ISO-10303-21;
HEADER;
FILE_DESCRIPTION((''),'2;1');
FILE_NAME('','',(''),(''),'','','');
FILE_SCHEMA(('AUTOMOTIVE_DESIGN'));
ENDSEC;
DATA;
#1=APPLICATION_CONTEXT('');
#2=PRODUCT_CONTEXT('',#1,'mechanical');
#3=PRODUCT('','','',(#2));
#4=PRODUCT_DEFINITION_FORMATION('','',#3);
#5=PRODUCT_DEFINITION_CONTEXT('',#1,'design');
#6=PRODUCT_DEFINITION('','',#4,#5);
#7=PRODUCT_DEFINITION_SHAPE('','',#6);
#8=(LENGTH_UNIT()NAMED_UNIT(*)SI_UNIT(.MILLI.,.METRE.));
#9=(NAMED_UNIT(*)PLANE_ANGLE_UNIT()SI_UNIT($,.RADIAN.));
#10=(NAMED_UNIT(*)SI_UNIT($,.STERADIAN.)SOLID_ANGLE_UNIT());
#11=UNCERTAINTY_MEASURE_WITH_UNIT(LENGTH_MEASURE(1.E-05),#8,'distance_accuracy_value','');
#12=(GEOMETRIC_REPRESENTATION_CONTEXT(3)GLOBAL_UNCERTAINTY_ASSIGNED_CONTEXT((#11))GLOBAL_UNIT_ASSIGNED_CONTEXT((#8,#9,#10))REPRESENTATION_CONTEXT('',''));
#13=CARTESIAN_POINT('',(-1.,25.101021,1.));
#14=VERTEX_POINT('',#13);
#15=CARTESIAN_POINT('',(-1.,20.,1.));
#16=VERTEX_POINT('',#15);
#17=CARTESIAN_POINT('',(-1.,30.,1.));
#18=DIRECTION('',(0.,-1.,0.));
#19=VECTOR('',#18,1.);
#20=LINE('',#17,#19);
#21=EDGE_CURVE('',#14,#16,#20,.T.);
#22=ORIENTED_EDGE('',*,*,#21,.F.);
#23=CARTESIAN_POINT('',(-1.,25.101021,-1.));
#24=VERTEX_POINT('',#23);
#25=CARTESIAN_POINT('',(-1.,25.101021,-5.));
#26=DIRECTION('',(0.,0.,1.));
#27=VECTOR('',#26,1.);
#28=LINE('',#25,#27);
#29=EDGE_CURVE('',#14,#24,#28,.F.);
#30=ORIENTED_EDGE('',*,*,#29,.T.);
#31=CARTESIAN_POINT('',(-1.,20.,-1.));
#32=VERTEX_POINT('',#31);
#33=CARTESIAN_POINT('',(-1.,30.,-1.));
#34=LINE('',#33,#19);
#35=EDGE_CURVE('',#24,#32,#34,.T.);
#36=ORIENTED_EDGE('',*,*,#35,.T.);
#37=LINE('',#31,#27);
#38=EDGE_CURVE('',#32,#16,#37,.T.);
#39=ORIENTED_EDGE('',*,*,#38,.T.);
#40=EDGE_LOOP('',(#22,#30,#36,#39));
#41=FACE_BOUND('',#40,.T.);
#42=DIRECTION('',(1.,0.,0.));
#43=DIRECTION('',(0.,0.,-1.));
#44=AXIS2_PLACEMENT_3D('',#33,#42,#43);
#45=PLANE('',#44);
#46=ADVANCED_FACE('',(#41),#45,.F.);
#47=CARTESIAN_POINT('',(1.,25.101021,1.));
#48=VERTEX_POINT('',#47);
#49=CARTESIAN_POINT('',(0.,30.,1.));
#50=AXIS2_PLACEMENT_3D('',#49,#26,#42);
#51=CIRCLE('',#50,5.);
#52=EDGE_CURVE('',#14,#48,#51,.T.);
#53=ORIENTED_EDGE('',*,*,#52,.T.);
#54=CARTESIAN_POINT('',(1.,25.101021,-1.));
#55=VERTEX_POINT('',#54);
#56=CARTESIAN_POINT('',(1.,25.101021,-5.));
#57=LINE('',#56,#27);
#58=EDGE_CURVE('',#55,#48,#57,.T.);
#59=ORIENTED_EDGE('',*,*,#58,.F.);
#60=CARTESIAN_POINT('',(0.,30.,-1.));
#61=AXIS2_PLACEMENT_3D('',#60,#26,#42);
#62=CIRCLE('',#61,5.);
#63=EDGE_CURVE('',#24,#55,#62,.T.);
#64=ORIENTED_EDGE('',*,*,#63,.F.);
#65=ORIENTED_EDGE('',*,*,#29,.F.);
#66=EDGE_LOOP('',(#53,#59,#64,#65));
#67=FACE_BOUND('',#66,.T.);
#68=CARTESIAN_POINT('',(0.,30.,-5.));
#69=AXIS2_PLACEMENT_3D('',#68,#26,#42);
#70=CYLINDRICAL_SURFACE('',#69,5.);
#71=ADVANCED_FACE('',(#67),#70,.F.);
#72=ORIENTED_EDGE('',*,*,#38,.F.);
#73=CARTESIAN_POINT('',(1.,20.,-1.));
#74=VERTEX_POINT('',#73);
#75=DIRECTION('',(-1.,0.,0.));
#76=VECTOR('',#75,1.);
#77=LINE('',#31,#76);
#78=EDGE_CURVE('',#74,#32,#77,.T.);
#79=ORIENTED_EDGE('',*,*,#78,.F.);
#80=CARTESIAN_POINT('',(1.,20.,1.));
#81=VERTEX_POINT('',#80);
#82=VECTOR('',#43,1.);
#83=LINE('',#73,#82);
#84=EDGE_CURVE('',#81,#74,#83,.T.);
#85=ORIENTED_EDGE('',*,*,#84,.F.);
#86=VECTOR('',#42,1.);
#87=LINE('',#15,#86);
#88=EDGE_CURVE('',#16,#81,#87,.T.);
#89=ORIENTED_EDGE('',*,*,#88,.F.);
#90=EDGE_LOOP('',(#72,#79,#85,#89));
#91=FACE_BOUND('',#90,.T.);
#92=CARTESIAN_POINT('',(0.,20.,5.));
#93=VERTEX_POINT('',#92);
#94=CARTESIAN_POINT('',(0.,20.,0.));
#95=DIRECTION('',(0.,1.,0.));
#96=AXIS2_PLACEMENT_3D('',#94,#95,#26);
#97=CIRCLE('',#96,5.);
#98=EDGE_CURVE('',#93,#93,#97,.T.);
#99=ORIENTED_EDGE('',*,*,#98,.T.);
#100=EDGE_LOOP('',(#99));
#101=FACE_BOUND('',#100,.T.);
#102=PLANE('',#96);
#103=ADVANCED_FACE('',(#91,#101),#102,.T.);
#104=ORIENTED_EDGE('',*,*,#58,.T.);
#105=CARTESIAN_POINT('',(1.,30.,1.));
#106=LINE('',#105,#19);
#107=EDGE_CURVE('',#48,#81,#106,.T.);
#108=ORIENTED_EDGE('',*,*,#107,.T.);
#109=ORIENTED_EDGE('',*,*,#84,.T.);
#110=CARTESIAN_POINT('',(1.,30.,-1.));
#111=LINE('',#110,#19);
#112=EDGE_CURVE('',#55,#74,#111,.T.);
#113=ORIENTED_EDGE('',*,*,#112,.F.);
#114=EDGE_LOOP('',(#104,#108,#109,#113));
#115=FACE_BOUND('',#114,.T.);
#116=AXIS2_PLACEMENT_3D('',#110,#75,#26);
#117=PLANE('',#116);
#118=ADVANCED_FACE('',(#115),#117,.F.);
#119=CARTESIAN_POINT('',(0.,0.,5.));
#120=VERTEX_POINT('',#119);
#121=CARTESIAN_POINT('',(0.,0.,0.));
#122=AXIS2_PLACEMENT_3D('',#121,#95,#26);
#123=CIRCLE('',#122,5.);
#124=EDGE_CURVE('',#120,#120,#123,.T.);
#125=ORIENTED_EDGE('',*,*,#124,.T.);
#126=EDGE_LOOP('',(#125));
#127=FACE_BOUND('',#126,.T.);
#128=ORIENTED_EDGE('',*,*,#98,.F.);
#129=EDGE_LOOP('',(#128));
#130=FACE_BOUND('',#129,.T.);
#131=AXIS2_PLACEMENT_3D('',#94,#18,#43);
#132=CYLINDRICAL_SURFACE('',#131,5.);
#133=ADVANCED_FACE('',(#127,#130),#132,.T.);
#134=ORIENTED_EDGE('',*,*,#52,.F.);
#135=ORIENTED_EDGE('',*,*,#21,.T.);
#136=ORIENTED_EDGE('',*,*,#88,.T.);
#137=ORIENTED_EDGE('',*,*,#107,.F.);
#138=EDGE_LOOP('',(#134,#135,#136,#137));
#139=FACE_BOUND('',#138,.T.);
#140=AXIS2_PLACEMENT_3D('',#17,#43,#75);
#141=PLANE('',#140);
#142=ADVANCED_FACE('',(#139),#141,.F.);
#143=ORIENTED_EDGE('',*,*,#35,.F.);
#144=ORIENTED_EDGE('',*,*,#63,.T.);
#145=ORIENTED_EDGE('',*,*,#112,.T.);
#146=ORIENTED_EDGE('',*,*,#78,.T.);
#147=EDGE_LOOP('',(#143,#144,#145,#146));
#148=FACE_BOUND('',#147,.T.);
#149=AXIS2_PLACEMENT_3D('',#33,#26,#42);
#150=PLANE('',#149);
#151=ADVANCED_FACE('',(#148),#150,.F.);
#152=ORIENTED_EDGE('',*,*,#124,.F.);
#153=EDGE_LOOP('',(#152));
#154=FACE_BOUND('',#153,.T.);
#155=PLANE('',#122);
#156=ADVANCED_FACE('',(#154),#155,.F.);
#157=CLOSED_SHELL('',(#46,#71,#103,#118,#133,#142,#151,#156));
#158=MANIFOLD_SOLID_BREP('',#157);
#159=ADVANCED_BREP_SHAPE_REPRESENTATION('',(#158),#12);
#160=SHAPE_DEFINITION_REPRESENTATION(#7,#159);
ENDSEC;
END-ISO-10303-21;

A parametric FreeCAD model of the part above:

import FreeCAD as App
import Part
import Sketcher


def add_polygon(sketch, points):
    """Adds a closed chain of lines whose ends are joined by coincident constraints."""
    first, n = sketch.GeometryCount, len(points)
    for a, b in zip(points, points[1:] + points[:1]):
        sketch.addGeometry(Part.LineSegment(App.Vector(*a, 0), App.Vector(*b, 0)), False)
    for i in range(n):
        sketch.addConstraint(Sketcher.Constraint("Coincident", first + i, 2, first + (i + 1) % n, 1))

doc = App.newDocument("Part")
body = doc.addObject("PartDesign::Body", "Body")

# Sketch on XZ plane
sketch1 = doc.addObject("Sketcher::SketchObject", "Sketch")
body.addObject(sketch1)
sketch1.AttachmentSupport = (doc.XZ_Plane, [""])
sketch1.MapMode = "FlatFace"
sketch1.addGeometry(Part.Circle(App.Vector(0, 0, 0), App.Vector(0, 0, 1), 5), False)
sketch1.addConstraint([
    Sketcher.Constraint("Coincident", 0, 3, -1, 1),
    Sketcher.Constraint("Diameter", 0, 10.0),
])
pad1 = doc.addObject("PartDesign::Pad", "Pad")
body.addObject(pad1)
pad1.Profile = sketch1
pad1.Length = 20
pad1.Reversed = True

# Sketch on XZ plane
sketch2 = doc.addObject("Sketcher::SketchObject", "Sketch001")
body.addObject(sketch2)
sketch2.AttachmentSupport = (doc.XZ_Plane, [""])
sketch2.MapMode = "FlatFace"
sketch2.AttachmentOffset = App.Placement(App.Vector(0, 0, -20), App.Rotation())
add_polygon(sketch2, [(-1, -1), (-1, 1), (1, 1), (1, -1)])  # lines 0-3
sketch2.addConstraint([
    Sketcher.Constraint("Vertical", 0),
    Sketcher.Constraint("Horizontal", 1),
    Sketcher.Constraint("Vertical", 2),
    Sketcher.Constraint("Horizontal", 3),
    Sketcher.Constraint("Symmetric", 0, 2, 2, 2, -1, 1),
    Sketcher.Constraint("Equal", 3, 0),
    Sketcher.Constraint("DistanceX", 1, 1, 1, 2, 2.0),
])
pad2 = doc.addObject("PartDesign::Pad", "Pad001")
body.addObject(pad2)
pad2.Profile = sketch2
pad2.Length = 10
pad2.Reversed = True

# Sketch on XY plane
sketch3 = doc.addObject("Sketcher::SketchObject", "Sketch002")
body.addObject(sketch3)
sketch3.AttachmentSupport = (doc.XY_Plane, [""])
sketch3.MapMode = "FlatFace"
sketch3.AttachmentOffset = App.Placement(App.Vector(0, 0, 1), App.Rotation())
sketch3.addGeometry(Part.Circle(App.Vector(0, 30, 0), App.Vector(0, 0, 1), 5), False)
sketch3.addConstraint([
    Sketcher.Constraint("PointOnObject", 0, 3, -2),
    Sketcher.Constraint("Diameter", 0, 10.0),
    Sketcher.Constraint("DistanceY", -1, 1, 0, 3, 30.0),
])
pocket1 = doc.addObject("PartDesign::Pocket", "Pocket")
body.addObject(pocket1)
pocket1.Profile = sketch3
pocket1.Type = "ThroughAll"

doc.recompute()
